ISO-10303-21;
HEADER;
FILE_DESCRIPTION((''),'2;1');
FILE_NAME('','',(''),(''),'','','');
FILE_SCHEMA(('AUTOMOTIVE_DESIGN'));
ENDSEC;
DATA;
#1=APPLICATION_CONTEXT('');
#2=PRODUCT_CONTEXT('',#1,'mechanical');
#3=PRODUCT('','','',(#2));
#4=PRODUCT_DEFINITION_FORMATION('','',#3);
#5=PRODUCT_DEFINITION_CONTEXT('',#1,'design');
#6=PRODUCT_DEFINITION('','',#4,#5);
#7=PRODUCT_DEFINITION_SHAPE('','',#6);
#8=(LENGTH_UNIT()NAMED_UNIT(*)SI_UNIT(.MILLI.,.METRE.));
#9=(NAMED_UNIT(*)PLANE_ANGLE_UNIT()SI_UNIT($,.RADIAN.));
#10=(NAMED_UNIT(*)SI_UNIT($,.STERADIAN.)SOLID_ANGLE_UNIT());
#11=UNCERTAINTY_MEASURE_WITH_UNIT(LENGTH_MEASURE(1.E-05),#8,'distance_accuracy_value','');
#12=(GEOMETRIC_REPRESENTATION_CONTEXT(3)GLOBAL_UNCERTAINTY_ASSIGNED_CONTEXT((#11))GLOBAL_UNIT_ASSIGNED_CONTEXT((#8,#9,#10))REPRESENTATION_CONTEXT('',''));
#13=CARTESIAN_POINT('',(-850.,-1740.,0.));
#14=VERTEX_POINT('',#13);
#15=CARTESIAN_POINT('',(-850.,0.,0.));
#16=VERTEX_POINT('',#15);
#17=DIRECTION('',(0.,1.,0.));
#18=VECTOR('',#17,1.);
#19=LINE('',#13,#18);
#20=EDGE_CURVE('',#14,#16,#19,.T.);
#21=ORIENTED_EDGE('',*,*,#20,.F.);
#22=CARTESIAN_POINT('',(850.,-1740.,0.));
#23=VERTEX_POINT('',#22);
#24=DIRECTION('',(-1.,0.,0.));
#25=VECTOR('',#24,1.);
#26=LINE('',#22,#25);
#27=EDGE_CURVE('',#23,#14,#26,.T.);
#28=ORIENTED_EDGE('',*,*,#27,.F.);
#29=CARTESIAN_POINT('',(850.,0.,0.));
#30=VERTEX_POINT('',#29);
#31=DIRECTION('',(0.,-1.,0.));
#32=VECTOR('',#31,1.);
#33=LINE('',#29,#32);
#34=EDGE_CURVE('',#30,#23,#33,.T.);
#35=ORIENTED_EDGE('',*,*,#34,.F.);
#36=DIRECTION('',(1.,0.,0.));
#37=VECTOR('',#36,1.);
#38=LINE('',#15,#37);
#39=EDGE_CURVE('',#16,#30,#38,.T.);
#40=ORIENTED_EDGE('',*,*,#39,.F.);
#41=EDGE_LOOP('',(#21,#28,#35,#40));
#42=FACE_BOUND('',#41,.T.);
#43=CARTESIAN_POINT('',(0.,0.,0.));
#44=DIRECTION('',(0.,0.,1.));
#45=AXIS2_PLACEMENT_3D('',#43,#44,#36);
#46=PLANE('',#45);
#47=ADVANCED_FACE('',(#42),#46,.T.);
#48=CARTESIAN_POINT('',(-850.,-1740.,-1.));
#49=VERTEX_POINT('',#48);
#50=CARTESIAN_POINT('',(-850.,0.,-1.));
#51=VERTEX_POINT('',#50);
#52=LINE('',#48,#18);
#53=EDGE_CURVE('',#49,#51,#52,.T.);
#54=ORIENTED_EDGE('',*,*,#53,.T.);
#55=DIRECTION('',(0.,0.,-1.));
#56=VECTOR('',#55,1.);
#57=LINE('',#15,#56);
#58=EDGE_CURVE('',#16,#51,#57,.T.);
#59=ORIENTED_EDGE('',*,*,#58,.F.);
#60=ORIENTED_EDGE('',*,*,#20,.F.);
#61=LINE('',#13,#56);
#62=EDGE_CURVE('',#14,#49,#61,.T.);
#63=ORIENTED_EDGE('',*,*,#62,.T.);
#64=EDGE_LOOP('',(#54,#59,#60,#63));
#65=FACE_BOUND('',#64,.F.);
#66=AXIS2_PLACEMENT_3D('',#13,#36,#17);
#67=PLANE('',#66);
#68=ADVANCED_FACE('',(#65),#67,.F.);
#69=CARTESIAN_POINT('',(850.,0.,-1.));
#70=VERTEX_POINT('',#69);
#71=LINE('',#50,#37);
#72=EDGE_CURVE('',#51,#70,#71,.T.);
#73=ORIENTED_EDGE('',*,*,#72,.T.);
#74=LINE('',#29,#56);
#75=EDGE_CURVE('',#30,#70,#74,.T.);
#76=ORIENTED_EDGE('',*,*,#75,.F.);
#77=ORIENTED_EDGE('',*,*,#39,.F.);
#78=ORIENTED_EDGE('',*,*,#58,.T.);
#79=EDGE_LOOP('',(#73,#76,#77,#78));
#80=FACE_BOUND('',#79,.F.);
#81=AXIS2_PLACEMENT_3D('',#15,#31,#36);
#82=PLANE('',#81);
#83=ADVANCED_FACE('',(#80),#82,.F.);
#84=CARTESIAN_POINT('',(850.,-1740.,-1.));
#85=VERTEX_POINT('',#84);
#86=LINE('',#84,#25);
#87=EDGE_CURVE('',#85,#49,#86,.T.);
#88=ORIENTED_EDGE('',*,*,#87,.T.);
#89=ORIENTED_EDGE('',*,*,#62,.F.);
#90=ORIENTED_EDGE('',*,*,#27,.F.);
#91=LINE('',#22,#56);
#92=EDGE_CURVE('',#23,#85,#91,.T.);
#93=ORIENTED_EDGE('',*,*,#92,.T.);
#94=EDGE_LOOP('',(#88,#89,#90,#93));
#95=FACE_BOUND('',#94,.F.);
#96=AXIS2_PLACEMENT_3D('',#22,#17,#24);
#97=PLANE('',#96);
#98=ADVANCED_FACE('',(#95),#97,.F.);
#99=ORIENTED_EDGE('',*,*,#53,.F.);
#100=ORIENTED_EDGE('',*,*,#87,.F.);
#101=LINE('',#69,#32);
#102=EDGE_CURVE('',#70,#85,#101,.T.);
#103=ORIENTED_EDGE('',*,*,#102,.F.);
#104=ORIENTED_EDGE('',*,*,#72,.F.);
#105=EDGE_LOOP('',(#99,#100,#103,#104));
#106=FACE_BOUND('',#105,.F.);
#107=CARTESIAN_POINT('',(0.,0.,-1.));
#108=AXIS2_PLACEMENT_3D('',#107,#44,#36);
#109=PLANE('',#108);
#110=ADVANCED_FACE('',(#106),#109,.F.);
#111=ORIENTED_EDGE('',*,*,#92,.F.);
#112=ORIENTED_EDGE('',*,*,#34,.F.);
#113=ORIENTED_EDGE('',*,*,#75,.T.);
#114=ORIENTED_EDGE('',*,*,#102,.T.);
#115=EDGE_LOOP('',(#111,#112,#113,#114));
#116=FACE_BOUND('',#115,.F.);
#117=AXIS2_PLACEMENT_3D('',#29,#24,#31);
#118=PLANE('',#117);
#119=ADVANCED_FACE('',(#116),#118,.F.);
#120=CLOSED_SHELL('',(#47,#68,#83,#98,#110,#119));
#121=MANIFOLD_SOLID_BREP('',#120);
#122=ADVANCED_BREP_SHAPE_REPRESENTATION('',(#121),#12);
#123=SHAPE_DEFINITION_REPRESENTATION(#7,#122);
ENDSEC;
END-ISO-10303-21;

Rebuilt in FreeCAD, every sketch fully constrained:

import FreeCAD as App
import Part
import Sketcher
from FreeCAD import Vector

doc = App.newDocument("Part")
body = doc.addObject("PartDesign::Body", "Body")

# Sketch on XY plane
sketch1 = doc.addObject("Sketcher::SketchObject", "Sketch")
body.addObject(sketch1)
sketch1.AttachmentSupport = (doc.XY_Plane, [""])
sketch1.MapMode = "FlatFace"
sketch1.addGeometry(Part.LineSegment(Vector(-850, -1740, 0), Vector(850, -1740, 0)), False)
sketch1.addGeometry(Part.LineSegment(Vector(850, -1740, 0), Vector(850, 0, 0)), False)
sketch1.addGeometry(Part.LineSegment(Vector(850, 0, 0), Vector(-850, 0, 0)), False)
sketch1.addGeometry(Part.LineSegment(Vector(-850, 0, 0), Vector(-850, -1740, 0)), False)
sketch1.addConstraint(Sketcher.Constraint("Coincident", 0, 2, 1, 1))
sketch1.addConstraint(Sketcher.Constraint("Coincident", 1, 2, 2, 1))
sketch1.addConstraint(Sketcher.Constraint("Coincident", 2, 2, 3, 1))
sketch1.addConstraint(Sketcher.Constraint("Coincident", 3, 2, 0, 1))
sketch1.addConstraint(Sketcher.Constraint("Horizontal", 0))
sketch1.addConstraint(Sketcher.Constraint("Vertical", 1))
sketch1.addConstraint(Sketcher.Constraint("Horizontal", 2))
sketch1.addConstraint(Sketcher.Constraint("Vertical", 3))
sketch1.addConstraint(Sketcher.Constraint("Symmetric", 1, 2, 2, 2, -1, 1))
sketch1.addConstraint(Sketcher.Constraint("DistanceX", 0, 1, 0, 2, 1700.0))
sketch1.addConstraint(Sketcher.Constraint("DistanceY", 1, 1, 1, 2, 1740.0))
pad1 = doc.addObject("PartDesign::Pad", "Pad")
body.addObject(pad1)
pad1.Profile = sketch1
pad1.Length = 1
pad1.Reversed = True

doc.recompute()
